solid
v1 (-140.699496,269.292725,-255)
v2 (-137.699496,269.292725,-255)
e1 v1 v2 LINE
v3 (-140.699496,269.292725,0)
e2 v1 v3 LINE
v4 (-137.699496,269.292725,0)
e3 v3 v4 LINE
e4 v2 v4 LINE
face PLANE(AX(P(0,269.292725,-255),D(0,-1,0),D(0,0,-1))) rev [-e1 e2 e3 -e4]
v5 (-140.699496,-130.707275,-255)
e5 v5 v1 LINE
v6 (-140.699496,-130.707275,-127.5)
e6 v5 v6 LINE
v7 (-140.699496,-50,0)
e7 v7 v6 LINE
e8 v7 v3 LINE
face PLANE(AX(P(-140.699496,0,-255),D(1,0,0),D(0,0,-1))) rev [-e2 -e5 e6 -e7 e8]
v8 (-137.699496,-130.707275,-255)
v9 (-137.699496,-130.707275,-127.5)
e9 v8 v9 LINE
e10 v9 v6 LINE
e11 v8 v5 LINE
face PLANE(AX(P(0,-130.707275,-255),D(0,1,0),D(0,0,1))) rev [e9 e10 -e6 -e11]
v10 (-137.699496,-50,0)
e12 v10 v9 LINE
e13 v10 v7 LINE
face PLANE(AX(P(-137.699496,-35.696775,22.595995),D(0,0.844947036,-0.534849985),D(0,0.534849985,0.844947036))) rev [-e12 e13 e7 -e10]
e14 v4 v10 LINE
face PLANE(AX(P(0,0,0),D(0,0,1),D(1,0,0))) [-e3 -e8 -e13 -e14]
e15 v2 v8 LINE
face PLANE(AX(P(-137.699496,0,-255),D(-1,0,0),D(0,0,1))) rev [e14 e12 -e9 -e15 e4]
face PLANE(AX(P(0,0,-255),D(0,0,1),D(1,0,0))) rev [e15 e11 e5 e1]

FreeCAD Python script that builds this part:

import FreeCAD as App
import Part
import Sketcher
Q = App.Units.Quantity

doc = App.newDocument("Part")
body = doc.addObject("PartDesign::Body", "Body")

# Sketch on XY plane
sketch1 = doc.addObject("Sketcher::SketchObject", "Sketch")
body.addObject(sketch1)
sketch1.AttachmentSupport = (doc.XY_Plane, [""])
sketch1.MapMode = "FlatFace"
sketch1.addGeometry([
    Part.LineSegment(App.Vector(-140.7, 269.3, 0), App.Vector(-140.7, -130.7, 0)),
    Part.LineSegment(App.Vector(-140.7, -130.7, 0), App.Vector(-137.7, -130.7, 0)),
    Part.LineSegment(App.Vector(-137.7, -130.7, 0), App.Vector(-137.7, 269.3, 0)),
    Part.LineSegment(App.Vector(-137.7, 269.3, 0), App.Vector(-140.7, 269.3, 0)),
], False)
sketch1.addConstraint([
    Sketcher.Constraint("Coincident", 0, 2, 1, 1),
    Sketcher.Constraint("Coincident", 1, 2, 2, 1),
    Sketcher.Constraint("Coincident", 2, 2, 3, 1),
    Sketcher.Constraint("Coincident", 3, 2, 0, 1),
    Sketcher.Constraint("Vertical", 0),
    Sketcher.Constraint("Horizontal", 1),
    Sketcher.Constraint("Vertical", 2),
    Sketcher.Constraint("Horizontal", 3),
    Sketcher.Constraint("DistanceX", 1, 1, 1, 2, Q("3 mm")),
    Sketcher.Constraint("DistanceY", 0, 2, 0, 1, Q("400 mm")),
    Sketcher.Constraint("DistanceX", 0, 2, -1, 1, Q("140.699496 mm")),
    Sketcher.Constraint("DistanceY", 0, 2, -1, 1, Q("130.707275 mm")),
])
pad1 = doc.addObject("PartDesign::Pad", "Pad")
body.addObject(pad1)
pad1.Profile = sketch1
pad1.Length = 255
pad1.Reversed = True

# Sketch on YZ plane
sketch2 = doc.addObject("Sketcher::SketchObject", "Sketch001")
body.addObject(sketch2)
sketch2.AttachmentSupport = (doc.YZ_Plane, [""])
sketch2.MapMode = "FlatFace"
sketch2.AttachmentOffset = App.Placement(App.Vector(0, 0, -140.699496), App.Rotation())
sketch2.addGeometry([
    Part.LineSegment(App.Vector(-131, 0, 0), App.Vector(-50, 0, 0)),
    Part.LineSegment(App.Vector(-50, 0, 0), App.Vector(-131, -128, 0)),
    Part.LineSegment(App.Vector(-131, -128, 0), App.Vector(-131, 0, 0)),
], False)
sketch2.addConstraint([
    Sketcher.Constraint("Coincident", 0, 2, 1, 1),
    Sketcher.Constraint("Coincident", 1, 2, 2, 1),
    Sketcher.Constraint("Coincident", 2, 2, 0, 1),
    Sketcher.Constraint("Horizontal", 0),
    Sketcher.Constraint("Vertical", 2),
    Sketcher.Constraint("PointOnObject", 0, 2, -1),
    Sketcher.Constraint("DistanceY", 2, 1, 2, 2, Q("127.5 mm")),
    Sketcher.Constraint("DistanceX", 0, 2, -1, 1, Q("50 mm")),
    Sketcher.Constraint("DistanceX", 0, 1, 0, 2, Q("80.707275 mm")),
])
pocket1 = doc.addObject("PartDesign::Pocket", "Pocket")
body.addObject(pocket1)
pocket1.Profile = sketch2
pocket1.Type = "ThroughAll"
pocket1.Reversed = True

doc.recompute()
